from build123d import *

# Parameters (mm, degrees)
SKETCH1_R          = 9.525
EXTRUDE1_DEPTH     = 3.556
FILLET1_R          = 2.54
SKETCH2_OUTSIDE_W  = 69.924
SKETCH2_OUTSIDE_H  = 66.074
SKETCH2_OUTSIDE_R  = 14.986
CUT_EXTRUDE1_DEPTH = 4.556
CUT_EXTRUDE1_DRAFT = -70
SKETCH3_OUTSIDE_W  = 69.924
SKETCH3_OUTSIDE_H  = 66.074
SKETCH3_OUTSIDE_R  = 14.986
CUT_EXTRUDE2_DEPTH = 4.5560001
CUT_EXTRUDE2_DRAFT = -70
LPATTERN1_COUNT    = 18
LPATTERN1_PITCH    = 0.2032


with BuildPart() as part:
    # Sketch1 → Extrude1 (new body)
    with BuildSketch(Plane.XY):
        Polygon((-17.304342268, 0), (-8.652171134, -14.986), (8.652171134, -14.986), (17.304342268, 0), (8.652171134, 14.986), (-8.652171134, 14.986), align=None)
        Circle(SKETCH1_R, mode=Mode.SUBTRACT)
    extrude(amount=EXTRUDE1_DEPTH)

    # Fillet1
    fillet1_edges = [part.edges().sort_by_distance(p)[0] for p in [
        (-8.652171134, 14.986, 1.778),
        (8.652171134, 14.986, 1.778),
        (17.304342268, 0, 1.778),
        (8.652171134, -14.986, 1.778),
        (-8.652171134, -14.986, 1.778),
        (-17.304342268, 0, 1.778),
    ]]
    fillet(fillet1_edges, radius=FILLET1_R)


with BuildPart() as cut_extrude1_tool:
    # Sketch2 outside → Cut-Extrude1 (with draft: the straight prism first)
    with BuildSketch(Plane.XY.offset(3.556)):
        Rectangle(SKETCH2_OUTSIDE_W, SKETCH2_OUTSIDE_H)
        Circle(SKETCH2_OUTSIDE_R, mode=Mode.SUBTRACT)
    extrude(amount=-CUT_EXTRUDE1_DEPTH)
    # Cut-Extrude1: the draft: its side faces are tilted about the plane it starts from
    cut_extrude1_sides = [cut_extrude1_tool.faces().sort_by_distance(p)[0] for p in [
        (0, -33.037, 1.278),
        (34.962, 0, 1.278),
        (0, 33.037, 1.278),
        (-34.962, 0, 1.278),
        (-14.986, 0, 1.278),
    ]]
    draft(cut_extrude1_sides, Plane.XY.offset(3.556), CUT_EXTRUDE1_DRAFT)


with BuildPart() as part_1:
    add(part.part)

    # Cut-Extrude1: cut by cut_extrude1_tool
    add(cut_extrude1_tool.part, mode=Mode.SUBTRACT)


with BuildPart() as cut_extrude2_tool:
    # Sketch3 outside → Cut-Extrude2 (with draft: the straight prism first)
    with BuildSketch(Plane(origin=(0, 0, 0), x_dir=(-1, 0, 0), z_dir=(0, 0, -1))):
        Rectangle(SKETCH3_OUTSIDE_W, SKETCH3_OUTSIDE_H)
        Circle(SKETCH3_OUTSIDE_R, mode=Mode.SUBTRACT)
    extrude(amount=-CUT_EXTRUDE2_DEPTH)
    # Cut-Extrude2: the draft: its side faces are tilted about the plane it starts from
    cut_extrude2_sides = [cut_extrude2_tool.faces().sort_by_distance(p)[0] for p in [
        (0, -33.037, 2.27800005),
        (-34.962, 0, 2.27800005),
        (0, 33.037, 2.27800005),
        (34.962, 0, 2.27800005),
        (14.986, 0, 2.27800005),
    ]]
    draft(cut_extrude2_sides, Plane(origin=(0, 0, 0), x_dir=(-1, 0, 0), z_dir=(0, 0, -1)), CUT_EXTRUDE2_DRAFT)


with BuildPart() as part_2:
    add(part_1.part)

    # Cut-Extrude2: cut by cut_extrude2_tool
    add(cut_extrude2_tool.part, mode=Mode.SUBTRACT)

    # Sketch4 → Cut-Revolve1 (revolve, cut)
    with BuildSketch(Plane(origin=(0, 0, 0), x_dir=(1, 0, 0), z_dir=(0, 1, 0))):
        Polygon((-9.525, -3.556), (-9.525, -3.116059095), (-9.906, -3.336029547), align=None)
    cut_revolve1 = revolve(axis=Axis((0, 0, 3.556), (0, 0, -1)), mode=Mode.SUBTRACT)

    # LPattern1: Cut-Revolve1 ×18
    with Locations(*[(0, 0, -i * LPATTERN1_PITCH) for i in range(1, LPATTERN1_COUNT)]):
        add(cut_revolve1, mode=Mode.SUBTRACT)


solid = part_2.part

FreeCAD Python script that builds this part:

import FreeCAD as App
import Part
import Sketcher

V = App.Vector
Q = App.Units.Quantity


def edges_at(feature, points):
    """Names of the edges that pass closest to the given points."""
    edges = feature.Shape.Edges
    near = lambda p: min(range(len(edges)), key=lambda i: edges[i].distToShape(Part.Vertex(*p))[0])
    return sorted({f"Edge{near(p) + 1}" for p in points})


def faces_at(feature, points):
    """Names of the faces that lie closest to the given points."""
    faces = feature.Shape.Faces
    near = lambda p: min(range(len(faces)), key=lambda i: faces[i].distToShape(Part.Vertex(*p))[0])
    return sorted({f"Face{near(p) + 1}" for p in points})


def add_polygon(sketch, points):
    """Adds a closed chain of lines whose ends are joined by coincident constraints."""
    first, n = sketch.GeometryCount, len(points)
    for a, b in zip(points, points[1:] + points[:1]):
        sketch.addGeometry(Part.LineSegment(App.Vector(*a, 0), App.Vector(*b, 0)), False)
    for i in range(n):
        sketch.addConstraint(Sketcher.Constraint("Coincident", first + i, 2, first + (i + 1) % n, 1))

doc = App.newDocument("Part")
body = doc.addObject("PartDesign::Body", "Body")

# Sketch on XY plane
sketch1 = doc.addObject("Sketcher::SketchObject", "Sketch")
body.addObject(sketch1)
sketch1.AttachmentSupport = (doc.XY_Plane, [""])
sketch1.MapMode = "FlatFace"
add_polygon(sketch1, [(-17, 0), (-9, -15), (9, -15), (17, 0), (9, 15), (-9, 15)])  # lines 0-5
sketch1.addGeometry(Part.Circle(V(0, 0, 0), V(0, 0, 1), 10), False)  # 6
sketch1.addConstraint([
    Sketcher.Constraint("Horizontal", 1),
    Sketcher.Constraint("Horizontal", 4),
    Sketcher.Constraint("Coincident", 6, 3, -1, 1),
    Sketcher.Constraint("Symmetric", 0, 2, 3, 2, -1, 1),
    Sketcher.Constraint("Symmetric", 2, 2, 5, 2, -1, 1),
    Sketcher.Constraint("PointOnObject", 2, 2, -1),
    Sketcher.Constraint("Parallel", 2, 5),
    Sketcher.Constraint("Vertical", 1, 2, 3, 2),
    Sketcher.Constraint("Diameter", 6, Q("0.75 in")),
    Sketcher.Constraint("Angle", 0, Q("-60 deg")),
    Sketcher.Constraint("DistanceY", 0, 2, -1, 1, Q("0.59 in")),
    Sketcher.Constraint("DistanceX", 1, 1, 1, 2, 17.304342),
])
pad1 = doc.addObject("PartDesign::Pad", "Pad")
body.addObject(pad1)
pad1.Profile = sketch1
pad1.Length = Q("0.14 in")
doc.recompute()

fillet = doc.addObject("PartDesign::Fillet", "Fillet")
body.addObject(fillet)
fillet.Base = (pad1, edges_at(pad1, [
    (-8.652, 14.986, 1.778),
    (8.652, 14.986, 1.778),
    (17.304, 0, 1.778),
    (8.652, -14.986, 1.778),
    (-8.652, -14.986, 1.778),
    (-17.304, 0, 1.778),
]))
fillet.Radius = Q("0.1 in")
body2 = doc.addObject("PartDesign::Body", "Body001")

# Sketch on XY plane
sketch2 = doc.addObject("Sketcher::SketchObject", "Sketch001")
body2.addObject(sketch2)
sketch2.AttachmentSupport = (doc.getObject("XY_Plane001"), [""])
sketch2.MapMode = "FlatFace"
sketch2.AttachmentOffset = App.Placement(V(0, 0, 0.14 * 25.4), App.Rotation())
add_polygon(sketch2, [(-35, 33), (-35, -33), (35, -33), (35, 33)])  # lines 0-3
sketch2.addGeometry(Part.Circle(V(0, 0, 0), V(0, 0, 1), 15), False)  # 4
sketch2.addConstraint([
    Sketcher.Constraint("Vertical", 0),
    Sketcher.Constraint("Horizontal", 1),
    Sketcher.Constraint("Vertical", 2),
    Sketcher.Constraint("Horizontal", 3),
    Sketcher.Constraint("Coincident", 4, 3, -1, 1),
    Sketcher.Constraint("Symmetric", 0, 2, 2, 2, -1, 1),
    Sketcher.Constraint("Diameter", 4, Q("1.18 in")),
    Sketcher.Constraint("DistanceX", 1, 1, 1, 2, 69.924),
    Sketcher.Constraint("DistanceY", 0, 2, 0, 1, 66.074),
])
pad2 = doc.addObject("PartDesign::Pad", "Pad001")
body2.addObject(pad2)
pad2.Profile = sketch2
pad2.Length = 4.556
pad2.Reversed = True
doc.recompute()

datumplane = doc.addObject("PartDesign::Plane", "DatumPlane")
body2.addObject(datumplane)
datumplane.AttachmentSupport = (doc.getObject("XY_Plane001"), [""])
datumplane.MapMode = "FlatFace"
datumplane.AttachmentOffset = App.Placement(V(0, 0, 0.14 * 25.4), App.Rotation())
draft = doc.addObject("PartDesign::Draft", "Draft")
body2.addObject(draft)
draft.Base = (pad2, faces_at(pad2, [
    (0, -33.037, 1.278),
    (34.962, 0, 1.278),
    (0, 33.037, 1.278),
    (-34.962, 0, 1.278),
    (-14.986, 0, 1.278),
]))
draft.NeutralPlane = (datumplane, [""])
draft.Angle = 70
draft.Reversed = True
doc.recompute()

boolean = doc.addObject("PartDesign::Boolean", "Boolean")
body.addObject(boolean)
boolean.Type = "Cut"
boolean.addObjects([body2])
body3 = doc.addObject("PartDesign::Body", "Body002")

# Sketch on XY plane
sketch3 = doc.addObject("Sketcher::SketchObject", "Sketch002")
body3.addObject(sketch3)
sketch3.AttachmentSupport = (doc.getObject("XY_Plane002"), [""])
sketch3.MapMode = "FlatFace"
add_polygon(sketch3, [(35, 33), (35, -33), (-35, -33), (-35, 33)])  # lines 0-3
sketch3.addGeometry(Part.Circle(V(0, 0, 0), V(0, 0, 1), 15), False)  # 4
sketch3.addConstraint([
    Sketcher.Constraint("Vertical", 0),
    Sketcher.Constraint("Horizontal", 1),
    Sketcher.Constraint("Vertical", 2),
    Sketcher.Constraint("Horizontal", 3),
    Sketcher.Constraint("Coincident", 4, 3, -1, 1),
    Sketcher.Constraint("Symmetric", 0, 2, 2, 2, -1, 1),
    Sketcher.Constraint("Diameter", 4, Q("1.18 in")),
    Sketcher.Constraint("DistanceX", 1, 2, 1, 1, 69.924),
    Sketcher.Constraint("DistanceY", 0, 2, 0, 1, 66.074),
])
pad3 = doc.addObject("PartDesign::Pad", "Pad002")
body3.addObject(pad3)
pad3.Profile = sketch3
pad3.Length = 4.556
doc.recompute()

draft2 = doc.addObject("PartDesign::Draft", "Draft001")
body3.addObject(draft2)
draft2.Base = (pad3, faces_at(pad3, [
    (0, -33.037, 2.278),
    (-34.962, 0, 2.278),
    (0, 33.037, 2.278),
    (34.962, 0, 2.278),
    (14.986, 0, 2.278),
]))
draft2.NeutralPlane = (doc.getObject("XY_Plane002"), [""])
draft2.Angle = 70
draft2.Reversed = False
doc.recompute()

boolean2 = doc.addObject("PartDesign::Boolean", "Boolean001")
body.addObject(boolean2)
boolean2.Type = "Cut"
boolean2.addObjects([body3])

# Sketch on XZ plane
sketch4 = doc.addObject("Sketcher::SketchObject", "Sketch003")
body.addObject(sketch4)
sketch4.AttachmentSupport = (doc.XZ_Plane, [""])
sketch4.MapMode = "FlatFace"
add_polygon(sketch4, [(-9.53, 3.56), (-9.53, 3.12), (-9.91, 3.34)])  # lines 0-2
sketch4.addConstraint([
    Sketcher.Constraint("Vertical", 0),
    Sketcher.Constraint("Equal", 1, 2),
    Sketcher.Constraint("Angle", 1, Q("150 deg")),
    Sketcher.Constraint("DistanceX", 1, 2, -1, 1, Q("0.39 in")),
    Sketcher.Constraint("DistanceY", -1, 1, 2, 2, Q("0.14 in")),
    Sketcher.Constraint("DistanceX", 0, 2, -1, 1, Q("0.375 in")),
])
groove = doc.addObject("PartDesign::Groove", "Groove")
body.addObject(groove)
groove.Profile = sketch4
groove.ReferenceAxis = (sketch4, ["V_Axis"])
groove.Angle = 360
doc.recompute()

linearpattern = doc.addObject("PartDesign::LinearPattern", "LinearPattern")
body.addObject(linearpattern)
linearpattern.Originals = [groove]
linearpattern.Direction = (doc.Z_Axis, [""])
linearpattern.Mode = "offset"
linearpattern.Offset = Q("0.008 in")
linearpattern.Occurrences = 18
linearpattern.Reversed = True
body.Tip = linearpattern

doc.recompute()
